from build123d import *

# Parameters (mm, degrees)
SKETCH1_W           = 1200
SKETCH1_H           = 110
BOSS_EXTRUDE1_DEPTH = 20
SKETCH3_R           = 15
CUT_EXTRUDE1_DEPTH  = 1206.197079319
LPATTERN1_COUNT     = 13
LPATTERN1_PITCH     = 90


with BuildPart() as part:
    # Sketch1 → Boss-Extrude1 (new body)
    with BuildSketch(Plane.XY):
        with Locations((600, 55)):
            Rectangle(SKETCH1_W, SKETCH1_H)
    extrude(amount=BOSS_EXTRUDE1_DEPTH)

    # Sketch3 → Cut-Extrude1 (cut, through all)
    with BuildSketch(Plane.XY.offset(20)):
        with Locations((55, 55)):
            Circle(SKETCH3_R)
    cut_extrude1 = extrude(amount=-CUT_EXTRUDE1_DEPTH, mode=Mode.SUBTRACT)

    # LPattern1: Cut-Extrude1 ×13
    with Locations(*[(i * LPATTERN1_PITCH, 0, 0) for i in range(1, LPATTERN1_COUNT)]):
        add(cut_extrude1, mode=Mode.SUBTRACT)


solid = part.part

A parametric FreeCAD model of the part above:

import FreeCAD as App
import Part
import Sketcher
Q = App.Units.Quantity

doc = App.newDocument("Part")
body = doc.addObject("PartDesign::Body", "Body")

sketch1 = body.newObject("Sketcher::SketchObject", "Sketch")
sketch1.AttachmentSupport = (doc.getObject("XY_Plane"), [""])
sketch1.MapMode = "FlatFace"
sketch1.addGeometry([
    Part.LineSegment(App.Vector(0, 110, 0), App.Vector(0, 0, 0)),
    Part.LineSegment(App.Vector(0, 0, 0), App.Vector(1200, 0, 0)),
    Part.LineSegment(App.Vector(1200, 0, 0), App.Vector(1200, 110, 0)),
    Part.LineSegment(App.Vector(1200, 110, 0), App.Vector(0, 110, 0)),
], False)
sketch1.addConstraint([
    Sketcher.Constraint("Coincident", 0, 2, 1, 1),
    Sketcher.Constraint("Coincident", 1, 2, 2, 1),
    Sketcher.Constraint("Coincident", 2, 2, 3, 1),
    Sketcher.Constraint("Coincident", 3, 2, 0, 1),
    Sketcher.Constraint("Vertical", 0),
    Sketcher.Constraint("Horizontal", 1),
    Sketcher.Constraint("Vertical", 2),
    Sketcher.Constraint("Horizontal", 3),
    Sketcher.Constraint("Coincident", 0, 2, -1, 1),
    Sketcher.Constraint("DistanceX", 1, 1, 1, 2, Q("1200 mm")),
    Sketcher.Constraint("DistanceY", 0, 2, 0, 1, Q("110 mm")),
])
pad1 = body.newObject("PartDesign::Pad", "Pad")
pad1.Profile = sketch1
pad1.Length = 20

sketch2 = body.newObject("Sketcher::SketchObject", "Sketch001")
sketch2.AttachmentSupport = (doc.getObject("XY_Plane"), [""])
sketch2.MapMode = "FlatFace"
sketch2.AttachmentOffset = App.Placement(App.Vector(0, 0, 20), App.Rotation())
sketch2.addGeometry(Part.Circle(App.Vector(55, 55, 0), App.Vector(0, 0, 1), 15), False)
sketch2.addConstraint([
    Sketcher.Constraint("Diameter", 0, Q("30 mm")),
    Sketcher.Constraint("DistanceX", -1, 1, 0, 3, Q("55 mm")),
    Sketcher.Constraint("DistanceY", -1, 1, 0, 3, Q("55 mm")),
])
pocket1 = body.newObject("PartDesign::Pocket", "Pocket")
pocket1.Profile = sketch2
pocket1.Type = "ThroughAll"
doc.recompute()

linearpattern = body.newObject("PartDesign::LinearPattern", "LinearPattern")
linearpattern.Originals = [pocket1]
linearpattern.Direction = (doc.getObject("X_Axis"), [""])
linearpattern.Mode = "offset"
linearpattern.Offset = 90
linearpattern.Occurrences = 13
body.Tip = linearpattern

doc.recompute()
